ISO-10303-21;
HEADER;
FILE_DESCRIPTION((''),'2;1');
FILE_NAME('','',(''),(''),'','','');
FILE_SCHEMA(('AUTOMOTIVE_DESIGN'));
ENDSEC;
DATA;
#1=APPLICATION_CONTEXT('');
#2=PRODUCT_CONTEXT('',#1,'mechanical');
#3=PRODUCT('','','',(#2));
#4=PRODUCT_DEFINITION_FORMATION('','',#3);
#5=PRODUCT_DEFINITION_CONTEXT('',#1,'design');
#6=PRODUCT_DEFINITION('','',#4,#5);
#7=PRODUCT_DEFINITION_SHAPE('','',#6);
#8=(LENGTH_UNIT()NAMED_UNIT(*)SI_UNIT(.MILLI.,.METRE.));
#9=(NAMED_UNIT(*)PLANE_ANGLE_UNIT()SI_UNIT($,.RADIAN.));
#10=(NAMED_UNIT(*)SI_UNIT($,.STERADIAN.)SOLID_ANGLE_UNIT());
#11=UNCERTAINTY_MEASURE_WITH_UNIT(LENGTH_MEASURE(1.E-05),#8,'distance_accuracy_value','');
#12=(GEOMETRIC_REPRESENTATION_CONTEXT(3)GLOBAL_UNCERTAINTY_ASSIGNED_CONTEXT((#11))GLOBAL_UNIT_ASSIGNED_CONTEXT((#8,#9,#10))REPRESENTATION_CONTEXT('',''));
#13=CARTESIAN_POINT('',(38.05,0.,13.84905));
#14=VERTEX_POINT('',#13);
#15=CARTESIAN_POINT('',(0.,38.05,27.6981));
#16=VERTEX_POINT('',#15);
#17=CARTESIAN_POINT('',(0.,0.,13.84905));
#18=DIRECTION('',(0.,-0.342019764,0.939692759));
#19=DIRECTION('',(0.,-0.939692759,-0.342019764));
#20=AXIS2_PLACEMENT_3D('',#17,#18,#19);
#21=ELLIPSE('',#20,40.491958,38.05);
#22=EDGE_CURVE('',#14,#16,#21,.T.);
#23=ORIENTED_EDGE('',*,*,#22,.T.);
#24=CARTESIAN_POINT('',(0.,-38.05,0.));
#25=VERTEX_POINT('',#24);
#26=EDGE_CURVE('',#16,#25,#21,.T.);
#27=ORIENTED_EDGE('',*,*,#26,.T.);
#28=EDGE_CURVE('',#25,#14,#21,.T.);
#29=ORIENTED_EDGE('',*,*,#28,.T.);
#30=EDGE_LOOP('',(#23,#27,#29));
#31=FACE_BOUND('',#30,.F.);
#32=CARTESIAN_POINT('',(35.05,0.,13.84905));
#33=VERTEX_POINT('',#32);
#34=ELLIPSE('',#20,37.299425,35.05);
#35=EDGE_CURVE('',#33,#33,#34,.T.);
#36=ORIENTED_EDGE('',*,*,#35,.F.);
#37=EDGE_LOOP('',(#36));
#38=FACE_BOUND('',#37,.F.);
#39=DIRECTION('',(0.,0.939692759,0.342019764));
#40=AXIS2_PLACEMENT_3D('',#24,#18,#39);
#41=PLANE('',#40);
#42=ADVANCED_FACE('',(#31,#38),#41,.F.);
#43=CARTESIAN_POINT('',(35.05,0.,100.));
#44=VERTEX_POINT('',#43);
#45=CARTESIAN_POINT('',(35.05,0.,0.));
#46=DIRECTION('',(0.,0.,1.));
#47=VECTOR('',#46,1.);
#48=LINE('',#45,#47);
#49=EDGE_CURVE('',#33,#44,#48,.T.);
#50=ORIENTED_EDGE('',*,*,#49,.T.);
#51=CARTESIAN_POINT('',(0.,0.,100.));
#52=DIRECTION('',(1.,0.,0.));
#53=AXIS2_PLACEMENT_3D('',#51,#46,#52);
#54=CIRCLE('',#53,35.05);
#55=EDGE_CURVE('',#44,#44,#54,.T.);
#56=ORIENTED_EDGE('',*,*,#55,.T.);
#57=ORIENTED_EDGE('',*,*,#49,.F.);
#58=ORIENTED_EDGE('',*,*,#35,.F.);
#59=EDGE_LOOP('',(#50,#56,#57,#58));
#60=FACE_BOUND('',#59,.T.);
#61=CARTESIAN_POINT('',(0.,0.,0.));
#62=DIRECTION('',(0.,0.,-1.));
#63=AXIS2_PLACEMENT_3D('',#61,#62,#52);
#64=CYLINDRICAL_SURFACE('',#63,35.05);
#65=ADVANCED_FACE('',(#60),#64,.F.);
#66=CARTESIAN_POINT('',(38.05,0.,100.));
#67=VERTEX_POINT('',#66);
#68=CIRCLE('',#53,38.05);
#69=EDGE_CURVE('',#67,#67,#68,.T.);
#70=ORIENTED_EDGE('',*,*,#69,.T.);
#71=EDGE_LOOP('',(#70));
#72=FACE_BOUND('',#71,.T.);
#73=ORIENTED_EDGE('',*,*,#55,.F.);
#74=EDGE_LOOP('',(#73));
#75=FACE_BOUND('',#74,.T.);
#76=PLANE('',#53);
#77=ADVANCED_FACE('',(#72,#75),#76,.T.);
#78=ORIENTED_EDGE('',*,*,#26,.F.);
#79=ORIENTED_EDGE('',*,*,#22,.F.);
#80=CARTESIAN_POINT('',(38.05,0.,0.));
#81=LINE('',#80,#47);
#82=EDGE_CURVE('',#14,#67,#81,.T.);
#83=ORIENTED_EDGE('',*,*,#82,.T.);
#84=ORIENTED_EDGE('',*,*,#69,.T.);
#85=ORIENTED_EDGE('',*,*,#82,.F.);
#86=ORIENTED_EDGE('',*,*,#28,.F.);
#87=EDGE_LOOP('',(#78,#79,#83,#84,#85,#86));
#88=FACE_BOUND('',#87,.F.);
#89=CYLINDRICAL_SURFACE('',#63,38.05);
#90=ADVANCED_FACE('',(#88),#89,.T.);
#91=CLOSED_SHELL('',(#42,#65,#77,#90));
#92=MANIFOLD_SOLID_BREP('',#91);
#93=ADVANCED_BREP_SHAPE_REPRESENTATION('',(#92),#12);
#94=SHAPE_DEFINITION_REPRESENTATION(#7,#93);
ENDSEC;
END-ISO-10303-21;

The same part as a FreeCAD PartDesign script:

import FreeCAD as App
import Part
import Sketcher
from FreeCAD import Vector
Q = App.Units.Quantity

doc = App.newDocument("Part")
params = doc.addObject("Spreadsheet::Sheet", "Params")
for row, (alias, value) in enumerate([
    ("sketch1_diameter", "76.1 mm"),
    ("sketch1_diameter2", "70.1 mm"),
    ("pad1_length", "100 mm"),
    ("sketch2_width", "76.1 mm"),
], start=1):
    params.set(f"A{row}", alias)
    params.set(f"B{row}", "=" + value)
    params.setAlias(f"B{row}", alias)

body = doc.addObject("PartDesign::Body", "Body")

# Sketch on XY plane
sketch1 = body.newObject("Sketcher::SketchObject", "Sketch")
sketch1.AttachmentSupport = (doc.getObject("XY_Plane"), [""])
sketch1.MapMode = "FlatFace"
sketch1.addGeometry([
    Part.Circle(Vector(0, 0, 0), Vector(0, 0, 1), 38),
    Part.Circle(Vector(0, 0, 0), Vector(0, 0, 1), 35),
], False)
sketch1.addConstraint([
    Sketcher.Constraint("Coincident", 0, 3, -1, 1),
    Sketcher.Constraint("Coincident", 1, 3, -1, 1),
    Sketcher.Constraint("Diameter", 0, 76.1),
    Sketcher.Constraint("Diameter", 1, 70.1),
])
sketch1.setExpression("Constraints[2]", "Params.sketch1_diameter")
sketch1.setExpression("Constraints[3]", "Params.sketch1_diameter2")
pad1 = body.newObject("PartDesign::Pad", "Pad")
pad1.Profile = sketch1
pad1.setExpression("Length", "Params.pad1_length")

# Sketch on YZ plane
sketch2 = body.newObject("Sketcher::SketchObject", "Sketch001")
sketch2.AttachmentSupport = (doc.getObject("YZ_Plane"), [""])
sketch2.MapMode = "FlatFace"
sketch2.addGeometry([
    Part.LineSegment(Vector(-38, 0, 0), Vector(38, 0, 0)),
    Part.LineSegment(Vector(38, 0, 0), Vector(38, 28, 0)),
    Part.LineSegment(Vector(38, 28, 0), Vector(-38, 0, 0)),
], False)
sketch2.addConstraint([
    Sketcher.Constraint("Coincident", 0, 2, 1, 1),
    Sketcher.Constraint("Coincident", 1, 2, 2, 1),
    Sketcher.Constraint("Coincident", 2, 2, 0, 1),
    Sketcher.Constraint("Horizontal", 0),
    Sketcher.Constraint("Vertical", 1),
    Sketcher.Constraint("Symmetric", 0, 2, 2, 2, -1, 1),
    Sketcher.Constraint("Angle", 2, Q("-160 deg")),
    Sketcher.Constraint("DistanceX", 0, 1, 0, 2, 76.1),
])
sketch2.setExpression("Constraints[7]", "Params.sketch2_width")
pocket1 = body.newObject("PartDesign::Pocket", "Pocket")
pocket1.Profile = sketch2
pocket1.Type = "ThroughAll"
pocket1.Midplane = True

doc.recompute()
